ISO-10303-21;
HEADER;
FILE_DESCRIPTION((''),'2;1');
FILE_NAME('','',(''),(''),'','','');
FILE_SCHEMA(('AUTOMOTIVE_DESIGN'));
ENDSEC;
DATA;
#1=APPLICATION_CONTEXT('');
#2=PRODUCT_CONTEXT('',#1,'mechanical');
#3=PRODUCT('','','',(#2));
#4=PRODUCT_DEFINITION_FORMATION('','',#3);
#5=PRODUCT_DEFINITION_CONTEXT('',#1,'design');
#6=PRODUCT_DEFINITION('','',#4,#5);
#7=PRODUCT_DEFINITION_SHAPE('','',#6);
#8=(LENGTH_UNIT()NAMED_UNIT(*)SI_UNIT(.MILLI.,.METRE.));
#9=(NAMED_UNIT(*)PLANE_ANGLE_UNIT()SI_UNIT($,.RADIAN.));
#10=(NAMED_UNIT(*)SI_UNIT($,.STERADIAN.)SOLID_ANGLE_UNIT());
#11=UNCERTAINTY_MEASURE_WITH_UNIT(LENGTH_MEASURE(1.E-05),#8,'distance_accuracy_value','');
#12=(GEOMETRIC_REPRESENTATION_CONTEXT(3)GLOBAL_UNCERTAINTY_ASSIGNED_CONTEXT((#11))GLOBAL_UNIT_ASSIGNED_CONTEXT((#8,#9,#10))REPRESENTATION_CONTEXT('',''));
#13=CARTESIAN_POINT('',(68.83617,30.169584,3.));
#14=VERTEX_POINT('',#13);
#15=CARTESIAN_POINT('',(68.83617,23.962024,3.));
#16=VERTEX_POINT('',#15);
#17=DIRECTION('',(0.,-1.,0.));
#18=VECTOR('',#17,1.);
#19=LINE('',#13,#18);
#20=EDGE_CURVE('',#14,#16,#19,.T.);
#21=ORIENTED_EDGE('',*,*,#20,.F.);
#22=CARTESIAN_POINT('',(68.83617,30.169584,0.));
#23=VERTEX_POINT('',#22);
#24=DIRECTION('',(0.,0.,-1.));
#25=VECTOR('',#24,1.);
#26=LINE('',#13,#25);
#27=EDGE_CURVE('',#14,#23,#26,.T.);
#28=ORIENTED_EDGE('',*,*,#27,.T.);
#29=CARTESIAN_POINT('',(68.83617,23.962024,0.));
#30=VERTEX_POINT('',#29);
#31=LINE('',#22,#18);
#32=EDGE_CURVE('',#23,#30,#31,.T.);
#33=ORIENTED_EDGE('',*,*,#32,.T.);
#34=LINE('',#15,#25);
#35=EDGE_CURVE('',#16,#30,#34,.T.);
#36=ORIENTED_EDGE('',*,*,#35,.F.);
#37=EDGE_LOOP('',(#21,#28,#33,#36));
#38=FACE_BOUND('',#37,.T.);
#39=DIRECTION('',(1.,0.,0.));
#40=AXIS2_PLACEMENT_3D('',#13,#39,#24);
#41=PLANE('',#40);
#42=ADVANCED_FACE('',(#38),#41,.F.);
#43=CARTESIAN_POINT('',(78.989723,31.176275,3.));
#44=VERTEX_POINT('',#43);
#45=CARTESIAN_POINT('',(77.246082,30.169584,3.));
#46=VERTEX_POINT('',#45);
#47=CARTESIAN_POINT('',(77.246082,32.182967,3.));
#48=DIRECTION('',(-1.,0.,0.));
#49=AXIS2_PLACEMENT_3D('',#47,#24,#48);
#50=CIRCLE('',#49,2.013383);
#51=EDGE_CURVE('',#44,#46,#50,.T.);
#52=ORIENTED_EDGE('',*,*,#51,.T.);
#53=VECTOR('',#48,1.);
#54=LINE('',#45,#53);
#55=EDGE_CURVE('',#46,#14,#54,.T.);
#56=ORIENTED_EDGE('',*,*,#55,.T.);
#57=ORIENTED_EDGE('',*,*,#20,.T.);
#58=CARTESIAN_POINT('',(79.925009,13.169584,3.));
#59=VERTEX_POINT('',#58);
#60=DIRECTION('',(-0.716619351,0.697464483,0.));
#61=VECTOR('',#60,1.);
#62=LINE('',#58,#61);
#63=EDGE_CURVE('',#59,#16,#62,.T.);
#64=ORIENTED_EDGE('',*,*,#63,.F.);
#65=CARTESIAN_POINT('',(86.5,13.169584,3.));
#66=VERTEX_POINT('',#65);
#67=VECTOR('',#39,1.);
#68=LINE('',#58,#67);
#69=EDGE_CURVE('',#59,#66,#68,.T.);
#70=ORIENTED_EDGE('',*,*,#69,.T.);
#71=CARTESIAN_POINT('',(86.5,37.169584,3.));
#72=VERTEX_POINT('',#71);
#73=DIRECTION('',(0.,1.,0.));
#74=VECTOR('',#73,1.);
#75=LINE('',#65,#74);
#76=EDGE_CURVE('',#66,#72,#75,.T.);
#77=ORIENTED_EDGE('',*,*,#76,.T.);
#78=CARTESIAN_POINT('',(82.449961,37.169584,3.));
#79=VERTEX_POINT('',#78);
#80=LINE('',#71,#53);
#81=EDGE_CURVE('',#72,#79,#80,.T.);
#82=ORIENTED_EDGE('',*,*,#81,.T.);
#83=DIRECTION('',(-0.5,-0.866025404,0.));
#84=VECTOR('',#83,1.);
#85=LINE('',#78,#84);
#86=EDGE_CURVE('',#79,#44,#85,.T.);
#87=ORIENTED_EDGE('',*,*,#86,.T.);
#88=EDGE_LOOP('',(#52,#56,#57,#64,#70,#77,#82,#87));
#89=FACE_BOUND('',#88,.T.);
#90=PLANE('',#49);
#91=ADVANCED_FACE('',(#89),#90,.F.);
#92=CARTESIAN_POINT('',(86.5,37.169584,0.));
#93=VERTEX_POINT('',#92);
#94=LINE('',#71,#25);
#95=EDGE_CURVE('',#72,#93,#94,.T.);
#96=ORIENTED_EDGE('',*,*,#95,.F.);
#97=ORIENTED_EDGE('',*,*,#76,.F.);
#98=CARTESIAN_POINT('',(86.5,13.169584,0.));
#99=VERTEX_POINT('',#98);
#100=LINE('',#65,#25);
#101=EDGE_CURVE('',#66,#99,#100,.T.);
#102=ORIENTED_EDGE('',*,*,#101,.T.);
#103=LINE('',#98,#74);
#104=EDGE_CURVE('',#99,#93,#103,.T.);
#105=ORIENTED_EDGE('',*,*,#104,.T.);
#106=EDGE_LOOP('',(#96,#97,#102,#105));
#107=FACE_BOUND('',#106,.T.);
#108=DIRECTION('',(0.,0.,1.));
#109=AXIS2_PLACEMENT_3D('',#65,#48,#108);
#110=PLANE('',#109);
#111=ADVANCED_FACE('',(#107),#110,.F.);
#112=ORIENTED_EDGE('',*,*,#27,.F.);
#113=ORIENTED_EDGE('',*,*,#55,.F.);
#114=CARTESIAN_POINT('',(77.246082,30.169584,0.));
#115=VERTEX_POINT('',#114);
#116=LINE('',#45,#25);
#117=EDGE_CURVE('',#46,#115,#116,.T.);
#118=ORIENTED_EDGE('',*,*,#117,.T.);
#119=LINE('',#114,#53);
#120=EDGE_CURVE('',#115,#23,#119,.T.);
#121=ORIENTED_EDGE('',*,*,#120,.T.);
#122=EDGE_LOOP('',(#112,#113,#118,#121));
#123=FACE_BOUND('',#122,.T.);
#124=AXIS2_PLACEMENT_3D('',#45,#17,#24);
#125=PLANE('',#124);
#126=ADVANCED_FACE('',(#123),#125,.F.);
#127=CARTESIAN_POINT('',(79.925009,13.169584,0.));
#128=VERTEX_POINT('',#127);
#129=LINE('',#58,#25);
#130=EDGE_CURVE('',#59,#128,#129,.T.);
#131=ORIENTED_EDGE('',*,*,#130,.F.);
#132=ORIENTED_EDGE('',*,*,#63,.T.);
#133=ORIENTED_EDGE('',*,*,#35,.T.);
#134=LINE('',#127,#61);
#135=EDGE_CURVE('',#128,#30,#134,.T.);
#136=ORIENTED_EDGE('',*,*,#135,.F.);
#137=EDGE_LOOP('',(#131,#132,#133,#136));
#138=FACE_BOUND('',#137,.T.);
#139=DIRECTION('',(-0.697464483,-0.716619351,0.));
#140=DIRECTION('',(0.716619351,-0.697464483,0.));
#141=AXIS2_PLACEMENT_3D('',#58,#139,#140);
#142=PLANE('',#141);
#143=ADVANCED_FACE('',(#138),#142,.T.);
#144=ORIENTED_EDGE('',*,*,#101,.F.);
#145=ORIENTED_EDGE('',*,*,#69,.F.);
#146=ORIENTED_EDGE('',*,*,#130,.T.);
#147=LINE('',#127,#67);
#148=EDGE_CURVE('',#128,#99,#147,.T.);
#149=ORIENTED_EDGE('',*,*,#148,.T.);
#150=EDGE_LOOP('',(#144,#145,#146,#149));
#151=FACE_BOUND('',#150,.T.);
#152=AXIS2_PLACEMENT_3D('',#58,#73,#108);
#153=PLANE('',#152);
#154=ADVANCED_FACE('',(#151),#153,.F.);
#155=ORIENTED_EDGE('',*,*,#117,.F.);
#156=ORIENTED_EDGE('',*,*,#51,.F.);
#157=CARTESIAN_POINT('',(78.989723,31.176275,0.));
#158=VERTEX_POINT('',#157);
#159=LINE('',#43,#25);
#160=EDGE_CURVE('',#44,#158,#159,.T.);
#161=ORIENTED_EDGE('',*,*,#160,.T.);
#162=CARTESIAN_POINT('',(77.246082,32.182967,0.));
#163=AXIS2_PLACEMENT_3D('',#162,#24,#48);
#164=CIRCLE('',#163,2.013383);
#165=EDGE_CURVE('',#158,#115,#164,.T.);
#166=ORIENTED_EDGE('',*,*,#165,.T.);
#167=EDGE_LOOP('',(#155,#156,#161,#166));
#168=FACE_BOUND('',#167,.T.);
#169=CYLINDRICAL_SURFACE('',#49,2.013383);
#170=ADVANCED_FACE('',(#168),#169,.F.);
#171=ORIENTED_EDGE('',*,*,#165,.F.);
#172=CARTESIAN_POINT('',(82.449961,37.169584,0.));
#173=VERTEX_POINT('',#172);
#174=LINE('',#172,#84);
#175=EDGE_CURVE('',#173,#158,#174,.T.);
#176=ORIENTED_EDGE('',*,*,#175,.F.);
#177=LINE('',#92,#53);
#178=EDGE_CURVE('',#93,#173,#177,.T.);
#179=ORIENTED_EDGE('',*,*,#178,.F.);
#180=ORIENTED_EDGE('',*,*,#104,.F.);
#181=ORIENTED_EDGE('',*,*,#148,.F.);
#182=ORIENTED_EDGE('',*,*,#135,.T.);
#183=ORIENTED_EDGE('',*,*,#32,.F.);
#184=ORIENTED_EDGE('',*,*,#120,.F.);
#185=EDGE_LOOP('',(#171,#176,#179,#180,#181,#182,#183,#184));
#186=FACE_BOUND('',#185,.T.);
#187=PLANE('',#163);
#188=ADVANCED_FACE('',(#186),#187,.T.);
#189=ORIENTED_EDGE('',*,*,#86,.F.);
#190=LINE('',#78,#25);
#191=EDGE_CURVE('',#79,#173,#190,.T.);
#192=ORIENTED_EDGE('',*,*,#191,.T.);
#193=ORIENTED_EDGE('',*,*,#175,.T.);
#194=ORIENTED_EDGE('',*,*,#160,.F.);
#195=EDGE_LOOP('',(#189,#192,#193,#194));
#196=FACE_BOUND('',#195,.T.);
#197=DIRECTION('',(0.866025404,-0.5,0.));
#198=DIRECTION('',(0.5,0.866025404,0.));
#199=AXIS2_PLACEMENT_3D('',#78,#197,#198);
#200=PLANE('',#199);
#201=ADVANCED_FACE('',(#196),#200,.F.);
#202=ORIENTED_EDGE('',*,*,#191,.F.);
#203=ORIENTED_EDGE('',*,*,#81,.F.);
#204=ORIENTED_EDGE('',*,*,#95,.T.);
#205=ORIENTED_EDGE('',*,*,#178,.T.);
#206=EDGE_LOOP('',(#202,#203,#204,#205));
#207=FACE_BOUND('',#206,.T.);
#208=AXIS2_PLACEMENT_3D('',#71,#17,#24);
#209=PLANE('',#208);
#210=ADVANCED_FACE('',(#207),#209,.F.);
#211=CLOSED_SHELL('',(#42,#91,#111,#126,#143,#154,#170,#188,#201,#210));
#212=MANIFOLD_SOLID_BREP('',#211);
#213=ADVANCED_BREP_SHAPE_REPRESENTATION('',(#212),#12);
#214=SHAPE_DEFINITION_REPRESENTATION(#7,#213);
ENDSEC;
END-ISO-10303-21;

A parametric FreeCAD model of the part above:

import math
import FreeCAD as App
import Part
import Sketcher

V = App.Vector
Q = App.Units.Quantity

doc = App.newDocument("Part")
body = doc.addObject("PartDesign::Body", "Body")

sketch1 = body.newObject("Sketcher::SketchObject", "Sketch")
sketch1.AttachmentSupport = (doc.getObject("XY_Plane"), [""])
sketch1.MapMode = "FlatFace"
sketch1.addGeometry([
    Part.LineSegment(V(79.9, 13.2, 0), V(86.5, 13.2, 0)),
    Part.LineSegment(V(86.5, 13.2, 0), V(86.5, 37.2, 0)),
    Part.LineSegment(V(86.5, 37.2, 0), V(82.4, 37.2, 0)),
    Part.LineSegment(V(82.4, 37.2, 0), V(79, 31.2, 0)),
    Part.ArcOfCircle(Part.Circle(V(77.2, 32.2, 0), V(0, 0, 1), 2), math.radians(-90), math.radians(-30)),
    Part.LineSegment(V(77.2, 30.2, 0), V(68.8, 30.2, 0)),
    Part.LineSegment(V(68.8, 30.2, 0), V(68.8, 24, 0)),
    Part.LineSegment(V(68.8, 24, 0), V(79.9, 13.2, 0)),
], False)
sketch1.addConstraint([
    Sketcher.Constraint("Coincident", 0, 2, 1, 1),
    Sketcher.Constraint("Coincident", 1, 2, 2, 1),
    Sketcher.Constraint("Coincident", 2, 2, 3, 1),
    Sketcher.Constraint("Tangent", 3, 2, 4, 2),
    Sketcher.Constraint("Tangent", 4, 1, 5, 1),
    Sketcher.Constraint("Coincident", 5, 2, 6, 1),
    Sketcher.Constraint("Coincident", 6, 2, 7, 1),
    Sketcher.Constraint("Coincident", 7, 2, 0, 1),
    Sketcher.Constraint("Horizontal", 0),
    Sketcher.Constraint("Vertical", 1),
    Sketcher.Constraint("Horizontal", 2),
    Sketcher.Constraint("Horizontal", 5),
    Sketcher.Constraint("Vertical", 6),
    Sketcher.Constraint("DistanceY", 1, 1, 1, 2, Q("24 mm")),
    Sketcher.Constraint("Angle", 3, Q("-120 deg")),
    Sketcher.Constraint("DistanceY", 4, 1, 2, 2, Q("7 mm")),
    Sketcher.Constraint("DistanceX", -1, 1, 0, 2, Q("86.5 mm")),
    Sketcher.Constraint("Radius", 4, Q("2.013383 mm")),
    Sketcher.Constraint("DistanceX", 0, 1, 0, 2, Q("6.574991 mm")),
    Sketcher.Constraint("DistanceX", 2, 2, 2, 1, Q("4.050039 mm")),
    Sketcher.Constraint("DistanceY", 6, 2, 6, 1, Q("6.20756 mm")),
    Sketcher.Constraint("Distance", 7, Q("15.47382 mm")),
    Sketcher.Constraint("DistanceY", -1, 1, 4, 3, Q("32.182967 mm")),
])
pad1 = body.newObject("PartDesign::Pad", "Pad")
pad1.Profile = sketch1
pad1.Length = 3

doc.recompute()
